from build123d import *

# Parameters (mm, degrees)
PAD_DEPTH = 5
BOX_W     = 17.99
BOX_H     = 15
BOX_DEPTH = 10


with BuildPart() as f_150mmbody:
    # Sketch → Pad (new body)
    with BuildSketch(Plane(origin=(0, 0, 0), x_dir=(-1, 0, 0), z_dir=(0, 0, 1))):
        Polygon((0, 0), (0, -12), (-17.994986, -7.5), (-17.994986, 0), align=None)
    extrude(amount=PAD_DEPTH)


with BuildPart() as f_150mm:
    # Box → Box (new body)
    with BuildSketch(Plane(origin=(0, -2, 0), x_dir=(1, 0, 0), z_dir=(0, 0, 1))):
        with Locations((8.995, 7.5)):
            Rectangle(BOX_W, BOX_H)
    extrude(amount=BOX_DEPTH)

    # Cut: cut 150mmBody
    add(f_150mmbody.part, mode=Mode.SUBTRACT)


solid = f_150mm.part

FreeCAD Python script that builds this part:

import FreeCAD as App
import Part
import Sketcher
Q = App.Units.Quantity

doc = App.newDocument("Part")
body = doc.addObject("PartDesign::Body", "Body")

sketch1 = doc.addObject("Sketcher::SketchObject", "Sketch")
body.addObject(sketch1)
sketch1.AttachmentSupport = (doc.XY_Plane, [""])
sketch1.MapMode = "FlatFace"
sketch1.addGeometry([
    Part.LineSegment(App.Vector(0, 12, 0), App.Vector(0, 0, 0)),
    Part.LineSegment(App.Vector(0, 0, 0), App.Vector(18, 0, 0)),
    Part.LineSegment(App.Vector(18, 0, 0), App.Vector(18, 8, 0)),
    Part.LineSegment(App.Vector(18, 8, 0), App.Vector(0, 12, 0)),
], False)
sketch1.addConstraint([
    Sketcher.Constraint("Coincident", 0, 2, 1, 1),
    Sketcher.Constraint("Coincident", 1, 2, 2, 1),
    Sketcher.Constraint("Coincident", 2, 2, 3, 1),
    Sketcher.Constraint("Coincident", 3, 2, 0, 1),
    Sketcher.Constraint("Vertical", 0),
    Sketcher.Constraint("Horizontal", 1),
    Sketcher.Constraint("Vertical", 2),
    Sketcher.Constraint("Coincident", 0, 2, -1, 1),
    Sketcher.Constraint("DistanceY", 0, 2, 0, 1, Q("12 mm")),
    Sketcher.Constraint("DistanceY", 2, 1, 2, 2, Q("7.5 mm")),
    Sketcher.Constraint("Angle", 3, Q("165.96 deg")),
])
pad1 = doc.addObject("PartDesign::Pad", "Pad")
body.addObject(pad1)
pad1.Profile = sketch1
pad1.Length = 5
body2 = doc.addObject("PartDesign::Body", "Body001")

sketch2 = doc.addObject("Sketcher::SketchObject", "Sketch001")
body2.addObject(sketch2)
sketch2.AttachmentSupport = (doc.getObject("XY_Plane001"), [""])
sketch2.MapMode = "FlatFace"
sketch2.addGeometry([
    Part.LineSegment(App.Vector(0, 13, 0), App.Vector(0, -2, 0)),
    Part.LineSegment(App.Vector(0, -2, 0), App.Vector(18, -2, 0)),
    Part.LineSegment(App.Vector(18, -2, 0), App.Vector(18, 13, 0)),
    Part.LineSegment(App.Vector(18, 13, 0), App.Vector(0, 13, 0)),
], False)
sketch2.addConstraint([
    Sketcher.Constraint("Coincident", 0, 2, 1, 1),
    Sketcher.Constraint("Coincident", 1, 2, 2, 1),
    Sketcher.Constraint("Coincident", 2, 2, 3, 1),
    Sketcher.Constraint("Coincident", 3, 2, 0, 1),
    Sketcher.Constraint("Vertical", 0),
    Sketcher.Constraint("Horizontal", 1),
    Sketcher.Constraint("Vertical", 2),
    Sketcher.Constraint("Horizontal", 3),
    Sketcher.Constraint("PointOnObject", 0, 2, -2),
    Sketcher.Constraint("DistanceY", 0, 2, 0, 1, Q("15 mm")),
    Sketcher.Constraint("DistanceY", 0, 2, -1, 1, Q("2 mm")),
    Sketcher.Constraint("DistanceX", 1, 1, 1, 2, Q("17.99 mm")),
])
pad2 = doc.addObject("PartDesign::Pad", "Pad001")
body2.addObject(pad2)
pad2.Profile = sketch2
pad2.Length = 10
doc.recompute()

boolean = doc.addObject("PartDesign::Boolean", "Boolean")
body2.addObject(boolean)
boolean.Type = "Cut"
boolean.addObjects([body])

doc.recompute()
